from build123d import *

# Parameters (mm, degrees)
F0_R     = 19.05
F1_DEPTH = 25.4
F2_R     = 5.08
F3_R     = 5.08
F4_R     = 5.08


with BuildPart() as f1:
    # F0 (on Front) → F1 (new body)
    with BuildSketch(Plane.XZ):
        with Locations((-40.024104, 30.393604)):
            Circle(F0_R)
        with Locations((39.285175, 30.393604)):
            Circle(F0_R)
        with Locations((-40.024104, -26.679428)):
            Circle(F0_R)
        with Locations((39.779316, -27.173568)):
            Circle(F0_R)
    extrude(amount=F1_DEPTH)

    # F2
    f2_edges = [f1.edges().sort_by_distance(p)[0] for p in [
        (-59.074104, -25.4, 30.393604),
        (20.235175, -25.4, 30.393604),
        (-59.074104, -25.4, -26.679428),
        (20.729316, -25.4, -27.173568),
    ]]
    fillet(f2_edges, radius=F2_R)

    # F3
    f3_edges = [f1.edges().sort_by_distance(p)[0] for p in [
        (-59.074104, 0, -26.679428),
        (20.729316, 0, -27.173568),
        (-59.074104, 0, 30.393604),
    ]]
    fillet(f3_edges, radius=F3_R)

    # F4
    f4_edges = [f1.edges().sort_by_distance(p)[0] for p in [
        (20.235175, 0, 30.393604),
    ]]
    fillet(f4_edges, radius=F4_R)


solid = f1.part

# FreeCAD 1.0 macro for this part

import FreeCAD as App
import Part
import Sketcher
Q = App.Units.Quantity


def edges_at(feature, points):
    """Names of the edges that pass closest to the given points."""
    edges = feature.Shape.Edges
    near = lambda p: min(range(len(edges)), key=lambda i: edges[i].distToShape(Part.Vertex(*p))[0])
    return sorted({f"Edge{near(p) + 1}" for p in points})

doc = App.newDocument("Part")
params = doc.addObject("Spreadsheet::Sheet", "Params")
for row, (alias, value) in enumerate([
    ("sketch1_diameter", "1.5 in"),
    ("pad1_length", "1 in"),
    ("fillet_radius", "0.2 in"),
    ("fillet2_radius", "0.2 in"),
    ("fillet3_radius", "0.2 in"),
], start=1):
    params.set(f"A{row}", alias)
    params.set(f"B{row}", "=" + value)
    params.setAlias(f"B{row}", alias)

body = doc.addObject("PartDesign::Body", "Body")
body.AllowCompound = True

# Sketch on XZ plane
sketch1 = body.newObject("Sketcher::SketchObject", "Sketch")
sketch1.AttachmentSupport = (doc.getObject("XZ_Plane"), [""])
sketch1.MapMode = "FlatFace"
sketch1.addGeometry(Part.Circle(App.Vector(-40, 30, 0), App.Vector(0, 0, 1), 19), False)
sketch1.addGeometry(Part.Circle(App.Vector(39, 30, 0), App.Vector(0, 0, 1), 19), False)
sketch1.addGeometry(Part.Circle(App.Vector(-40, -27, 0), App.Vector(0, 0, 1), 19), False)
sketch1.addGeometry(Part.Circle(App.Vector(40, -27, 0), App.Vector(0, 0, 1), 19), False)
sketch1.addConstraint(Sketcher.Constraint("Equal", 0, 1))
sketch1.addConstraint(Sketcher.Constraint("Equal", 1, 2))
sketch1.addConstraint(Sketcher.Constraint("Equal", 2, 3))
sketch1.addConstraint(Sketcher.Constraint("Horizontal", 0, 3, 1, 3))
sketch1.addConstraint(Sketcher.Constraint("Vertical", 0, 3, 2, 3))
sketch1.addConstraint(Sketcher.Constraint("Diameter", 0, Q("1.5 in")))
sketch1.addConstraint(Sketcher.Constraint("DistanceY", 2, 3, -1, 1, 26.679428))
sketch1.addConstraint(Sketcher.Constraint("DistanceX", 0, 3, 1, 3, 79.309279))
sketch1.addConstraint(Sketcher.Constraint("DistanceY", 2, 3, 0, 3, 57.073032))
sketch1.addConstraint(Sketcher.Constraint("DistanceX", 1, 3, 3, 3, 0.494141))
sketch1.addConstraint(Sketcher.Constraint("DistanceY", 3, 3, 2, 3, 0.49414))
sketch1.addConstraint(Sketcher.Constraint("DistanceX", 0, 3, -1, 1, 40.024104))
sketch1.setExpression("Constraints[5]", "Params.sketch1_diameter")
pad1 = body.newObject("PartDesign::Pad", "Pad")
pad1.Profile = sketch1
pad1.setExpression("Length", "Params.pad1_length")
doc.recompute()

fillet = body.newObject("PartDesign::Fillet", "Fillet")
fillet.Base = (pad1, edges_at(pad1, [
    (-59.074, -25.4, 30.394),
    (20.235, -25.4, 30.394),
    (-59.074, -25.4, -26.679),
    (20.729, -25.4, -27.174),
]))
fillet.setExpression("Radius", "Params.fillet_radius")
doc.recompute()

fillet2 = body.newObject("PartDesign::Fillet", "Fillet001")
fillet2.Base = (fillet, edges_at(fillet, [(-59.074, 0, -26.679), (20.729, 0, -27.174), (-59.074, 0, 30.394)]))
fillet2.setExpression("Radius", "Params.fillet2_radius")
doc.recompute()

fillet3 = body.newObject("PartDesign::Fillet", "Fillet002")
fillet3.Base = (fillet2, edges_at(fillet2, [(20.235, 0, 30.394)]))
fillet3.setExpression("Radius", "Params.fillet3_radius")

doc.recompute()
